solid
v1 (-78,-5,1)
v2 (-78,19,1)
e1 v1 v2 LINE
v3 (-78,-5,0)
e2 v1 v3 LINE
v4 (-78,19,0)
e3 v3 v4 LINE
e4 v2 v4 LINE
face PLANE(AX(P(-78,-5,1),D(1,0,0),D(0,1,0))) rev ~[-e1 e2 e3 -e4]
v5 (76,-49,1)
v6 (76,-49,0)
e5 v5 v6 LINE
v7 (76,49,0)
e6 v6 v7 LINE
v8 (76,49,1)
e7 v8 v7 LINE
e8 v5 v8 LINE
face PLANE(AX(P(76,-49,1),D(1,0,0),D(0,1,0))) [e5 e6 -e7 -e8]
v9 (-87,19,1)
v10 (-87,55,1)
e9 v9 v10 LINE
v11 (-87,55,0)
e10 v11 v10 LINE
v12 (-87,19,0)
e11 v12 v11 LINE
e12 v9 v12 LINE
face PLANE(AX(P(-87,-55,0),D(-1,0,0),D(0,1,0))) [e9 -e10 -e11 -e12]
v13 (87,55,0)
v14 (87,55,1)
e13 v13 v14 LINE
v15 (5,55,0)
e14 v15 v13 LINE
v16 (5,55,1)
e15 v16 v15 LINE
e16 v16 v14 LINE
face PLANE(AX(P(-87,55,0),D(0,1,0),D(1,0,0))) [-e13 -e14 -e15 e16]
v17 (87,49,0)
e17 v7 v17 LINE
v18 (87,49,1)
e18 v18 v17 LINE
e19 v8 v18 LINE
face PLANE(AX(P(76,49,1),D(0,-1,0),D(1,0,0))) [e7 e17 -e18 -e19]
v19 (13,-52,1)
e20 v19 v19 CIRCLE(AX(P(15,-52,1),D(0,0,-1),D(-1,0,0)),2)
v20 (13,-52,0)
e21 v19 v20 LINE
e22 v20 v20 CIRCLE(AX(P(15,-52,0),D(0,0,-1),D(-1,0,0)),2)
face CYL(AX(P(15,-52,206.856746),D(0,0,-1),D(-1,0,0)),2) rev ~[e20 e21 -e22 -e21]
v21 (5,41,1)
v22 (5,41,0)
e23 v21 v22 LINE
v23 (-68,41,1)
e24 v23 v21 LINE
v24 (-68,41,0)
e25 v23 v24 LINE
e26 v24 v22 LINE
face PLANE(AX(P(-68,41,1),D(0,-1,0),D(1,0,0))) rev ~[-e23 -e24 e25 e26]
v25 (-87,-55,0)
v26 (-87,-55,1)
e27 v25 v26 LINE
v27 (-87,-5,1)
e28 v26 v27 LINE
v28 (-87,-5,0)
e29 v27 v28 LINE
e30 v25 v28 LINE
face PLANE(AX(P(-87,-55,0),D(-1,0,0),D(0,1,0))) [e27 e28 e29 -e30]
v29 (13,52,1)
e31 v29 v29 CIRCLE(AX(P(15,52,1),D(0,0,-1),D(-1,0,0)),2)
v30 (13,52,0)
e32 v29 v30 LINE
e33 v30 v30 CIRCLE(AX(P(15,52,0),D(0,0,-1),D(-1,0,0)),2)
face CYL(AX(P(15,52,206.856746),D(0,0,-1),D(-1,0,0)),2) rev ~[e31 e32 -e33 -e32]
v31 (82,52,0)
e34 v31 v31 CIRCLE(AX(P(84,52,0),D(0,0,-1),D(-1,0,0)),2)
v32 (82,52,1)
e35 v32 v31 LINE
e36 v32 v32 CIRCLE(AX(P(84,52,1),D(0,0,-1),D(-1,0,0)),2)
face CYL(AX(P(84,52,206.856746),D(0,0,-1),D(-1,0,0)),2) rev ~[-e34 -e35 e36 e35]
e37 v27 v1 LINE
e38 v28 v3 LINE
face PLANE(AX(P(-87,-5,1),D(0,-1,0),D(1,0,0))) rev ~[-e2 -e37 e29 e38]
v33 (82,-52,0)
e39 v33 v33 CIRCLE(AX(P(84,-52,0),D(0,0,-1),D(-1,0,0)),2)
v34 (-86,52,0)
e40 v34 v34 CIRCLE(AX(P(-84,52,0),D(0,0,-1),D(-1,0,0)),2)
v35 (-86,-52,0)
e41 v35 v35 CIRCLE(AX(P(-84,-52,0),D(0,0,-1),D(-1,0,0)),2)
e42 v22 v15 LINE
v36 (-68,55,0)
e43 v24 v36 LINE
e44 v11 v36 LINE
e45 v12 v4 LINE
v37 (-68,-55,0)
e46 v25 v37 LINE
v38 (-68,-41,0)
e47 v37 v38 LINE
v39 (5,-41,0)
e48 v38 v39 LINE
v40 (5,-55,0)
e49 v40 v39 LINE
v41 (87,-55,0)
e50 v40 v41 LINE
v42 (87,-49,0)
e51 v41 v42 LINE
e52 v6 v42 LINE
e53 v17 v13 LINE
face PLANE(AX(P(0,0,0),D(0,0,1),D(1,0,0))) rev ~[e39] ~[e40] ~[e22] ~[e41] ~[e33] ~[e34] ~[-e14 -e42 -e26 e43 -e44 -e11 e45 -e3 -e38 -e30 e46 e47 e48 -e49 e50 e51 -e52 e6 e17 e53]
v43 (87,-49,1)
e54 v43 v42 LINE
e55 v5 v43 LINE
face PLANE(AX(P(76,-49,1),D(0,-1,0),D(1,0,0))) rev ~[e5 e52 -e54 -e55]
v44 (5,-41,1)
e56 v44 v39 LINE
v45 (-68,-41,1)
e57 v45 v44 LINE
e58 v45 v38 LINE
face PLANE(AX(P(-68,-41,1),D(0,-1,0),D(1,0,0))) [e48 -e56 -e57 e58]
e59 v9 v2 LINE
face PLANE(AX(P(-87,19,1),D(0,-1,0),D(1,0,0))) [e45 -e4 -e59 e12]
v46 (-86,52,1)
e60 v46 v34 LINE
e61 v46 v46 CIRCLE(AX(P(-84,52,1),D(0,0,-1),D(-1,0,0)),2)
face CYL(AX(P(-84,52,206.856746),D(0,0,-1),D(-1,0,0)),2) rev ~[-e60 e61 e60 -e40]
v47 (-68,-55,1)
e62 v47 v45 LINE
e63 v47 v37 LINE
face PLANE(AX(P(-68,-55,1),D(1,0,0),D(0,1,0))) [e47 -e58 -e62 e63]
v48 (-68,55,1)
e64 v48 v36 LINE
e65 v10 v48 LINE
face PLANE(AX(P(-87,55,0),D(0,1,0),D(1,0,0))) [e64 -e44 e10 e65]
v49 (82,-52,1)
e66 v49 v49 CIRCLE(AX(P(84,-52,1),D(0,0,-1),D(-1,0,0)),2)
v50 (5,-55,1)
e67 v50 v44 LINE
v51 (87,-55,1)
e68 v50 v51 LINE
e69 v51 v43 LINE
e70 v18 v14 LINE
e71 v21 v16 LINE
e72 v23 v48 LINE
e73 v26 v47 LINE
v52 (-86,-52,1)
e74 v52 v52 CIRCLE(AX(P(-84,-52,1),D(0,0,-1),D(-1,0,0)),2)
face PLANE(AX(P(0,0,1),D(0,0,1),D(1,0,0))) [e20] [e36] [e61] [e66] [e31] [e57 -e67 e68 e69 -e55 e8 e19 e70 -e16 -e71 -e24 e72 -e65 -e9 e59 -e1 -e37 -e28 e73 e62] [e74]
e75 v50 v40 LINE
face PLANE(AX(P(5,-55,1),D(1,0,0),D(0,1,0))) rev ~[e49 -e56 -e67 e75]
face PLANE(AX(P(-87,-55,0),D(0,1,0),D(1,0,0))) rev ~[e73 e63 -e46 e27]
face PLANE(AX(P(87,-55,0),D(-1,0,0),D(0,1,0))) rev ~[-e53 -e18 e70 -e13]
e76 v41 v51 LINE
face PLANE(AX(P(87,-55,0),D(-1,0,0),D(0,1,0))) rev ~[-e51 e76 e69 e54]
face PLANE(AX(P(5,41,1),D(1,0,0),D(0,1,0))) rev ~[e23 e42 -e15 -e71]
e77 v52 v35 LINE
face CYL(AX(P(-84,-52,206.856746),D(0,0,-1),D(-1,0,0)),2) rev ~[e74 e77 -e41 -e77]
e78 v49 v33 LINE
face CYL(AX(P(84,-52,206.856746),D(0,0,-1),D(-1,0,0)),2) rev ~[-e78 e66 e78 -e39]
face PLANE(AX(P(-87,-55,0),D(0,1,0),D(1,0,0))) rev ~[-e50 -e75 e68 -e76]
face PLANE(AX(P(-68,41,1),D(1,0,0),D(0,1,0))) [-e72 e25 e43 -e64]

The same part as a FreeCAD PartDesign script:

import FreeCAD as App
import Part
import Sketcher
from FreeCAD import Vector

doc = App.newDocument("Part")
params = doc.addObject("Spreadsheet::Sheet", "Params")
for row, (alias, value) in enumerate([
    ("sketch1_width", "174 mm"),
    ("sketch1_height", "110 mm"),
    ("pad1_length", "1 mm"),
    ("sketch2_width", "73 mm"),
    ("sketch2_width2", "9 mm"),
    ("sketch2_width3", "11 mm"),
    ("sketch2_height", "14 mm"),
    ("sketch2_height2", "24 mm"),
    ("pocket1_length", "25 mm"),
    ("sketch3_diameter", "4 mm"),
    ("hole_diameter", "4 mm"),
], start=1):
    params.set(f"A{row}", alias)
    params.set(f"B{row}", "=" + value)
    params.setAlias(f"B{row}", alias)

body = doc.addObject("PartDesign::Body", "Body")

sketch1 = body.newObject("Sketcher::SketchObject", "Sketch")
sketch1.AttachmentSupport = (doc.getObject("XY_Plane"), [""])
sketch1.MapMode = "FlatFace"
sketch1.addGeometry([
    Part.LineSegment(Vector(-87, 55, 0), Vector(-87, -55, 0)),
    Part.LineSegment(Vector(-87, -55, 0), Vector(87, -55, 0)),
    Part.LineSegment(Vector(87, -55, 0), Vector(87, 55, 0)),
    Part.LineSegment(Vector(87, 55, 0), Vector(-87, 55, 0)),
], False)
sketch1.addConstraint([
    Sketcher.Constraint("Coincident", 0, 2, 1, 1),
    Sketcher.Constraint("Coincident", 1, 2, 2, 1),
    Sketcher.Constraint("Coincident", 2, 2, 3, 1),
    Sketcher.Constraint("Coincident", 3, 2, 0, 1),
    Sketcher.Constraint("Vertical", 0),
    Sketcher.Constraint("Horizontal", 1),
    Sketcher.Constraint("Vertical", 2),
    Sketcher.Constraint("Horizontal", 3),
    Sketcher.Constraint("Symmetric", 0, 2, 2, 2, -1, 1),
    Sketcher.Constraint("DistanceX", 1, 1, 1, 2, 174.0),
    Sketcher.Constraint("DistanceY", 0, 2, 0, 1, 110.0),
])
sketch1.setExpression("Constraints[9]", "Params.sketch1_width")
sketch1.setExpression("Constraints[10]", "Params.sketch1_height")
pad1 = body.newObject("PartDesign::Pad", "Pad")
pad1.Profile = sketch1
pad1.setExpression("Length", "Params.pad1_length")

sketch2 = body.newObject("Sketcher::SketchObject", "Sketch001")
sketch2.AttachmentSupport = (doc.getObject("XY_Plane"), [""])
sketch2.MapMode = "FlatFace"
sketch2.AttachmentOffset = App.Placement(Vector(0, 0, 1), App.Rotation())
sketch2.addGeometry([
    Part.LineSegment(Vector(-68, 55, 0), Vector(-68, 41, 0)),
    Part.LineSegment(Vector(-68, 41, 0), Vector(5, 41, 0)),
    Part.LineSegment(Vector(5, 41, 0), Vector(5, 55, 0)),
    Part.LineSegment(Vector(5, 55, 0), Vector(-68, 55, 0)),
    Part.LineSegment(Vector(-68, -41, 0), Vector(-68, -55, 0)),
    Part.LineSegment(Vector(-68, -55, 0), Vector(5, -55, 0)),
    Part.LineSegment(Vector(5, -55, 0), Vector(5, -41, 0)),
    Part.LineSegment(Vector(5, -41, 0), Vector(-68, -41, 0)),
    Part.LineSegment(Vector(-87, 19, 0), Vector(-87, -5, 0)),
    Part.LineSegment(Vector(-87, -5, 0), Vector(-78, -5, 0)),
    Part.LineSegment(Vector(-78, -5, 0), Vector(-78, 19, 0)),
    Part.LineSegment(Vector(-78, 19, 0), Vector(-87, 19, 0)),
    Part.LineSegment(Vector(76, 49, 0), Vector(76, -49, 0)),
    Part.LineSegment(Vector(76, -49, 0), Vector(87, -49, 0)),
    Part.LineSegment(Vector(87, -49, 0), Vector(87, 49, 0)),
    Part.LineSegment(Vector(87, 49, 0), Vector(76, 49, 0)),
], False)
sketch2.addConstraint([
    Sketcher.Constraint("Coincident", 0, 2, 1, 1),
    Sketcher.Constraint("Coincident", 1, 2, 2, 1),
    Sketcher.Constraint("Coincident", 2, 2, 3, 1),
    Sketcher.Constraint("Coincident", 3, 2, 0, 1),
    Sketcher.Constraint("Coincident", 4, 2, 5, 1),
    Sketcher.Constraint("Coincident", 5, 2, 6, 1),
    Sketcher.Constraint("Coincident", 6, 2, 7, 1),
    Sketcher.Constraint("Coincident", 7, 2, 4, 1),
    Sketcher.Constraint("Coincident", 8, 2, 9, 1),
    Sketcher.Constraint("Coincident", 9, 2, 10, 1),
    Sketcher.Constraint("Coincident", 10, 2, 11, 1),
    Sketcher.Constraint("Coincident", 11, 2, 8, 1),
    Sketcher.Constraint("Coincident", 12, 2, 13, 1),
    Sketcher.Constraint("Coincident", 13, 2, 14, 1),
    Sketcher.Constraint("Coincident", 14, 2, 15, 1),
    Sketcher.Constraint("Coincident", 15, 2, 12, 1),
    Sketcher.Constraint("Vertical", 0),
    Sketcher.Constraint("Horizontal", 1),
    Sketcher.Constraint("Vertical", 2),
    Sketcher.Constraint("Horizontal", 3),
    Sketcher.Constraint("Vertical", 4),
    Sketcher.Constraint("Horizontal", 5),
    Sketcher.Constraint("Vertical", 6),
    Sketcher.Constraint("Horizontal", 7),
    Sketcher.Constraint("Vertical", 8),
    Sketcher.Constraint("Horizontal", 9),
    Sketcher.Constraint("Vertical", 10),
    Sketcher.Constraint("Horizontal", 11),
    Sketcher.Constraint("Vertical", 12),
    Sketcher.Constraint("Horizontal", 13),
    Sketcher.Constraint("Vertical", 14),
    Sketcher.Constraint("Horizontal", 15),
    Sketcher.Constraint("Symmetric", 3, 2, 4, 2, -1),
    Sketcher.Constraint("Symmetric", 1, 2, 6, 2, -1),
    Sketcher.Constraint("DistanceX", 1, 1, 1, 2, 73.0),
    Sketcher.Constraint("DistanceX", 9, 1, 9, 2, 9.0),
    Sketcher.Constraint("DistanceX", 13, 1, 13, 2, 11.0),
    Sketcher.Constraint("DistanceY", 0, 2, 0, 1, 14.0),
    Sketcher.Constraint("DistanceY", 8, 2, 8, 1, 24.0),
    Sketcher.Constraint("DistanceY", 12, 2, 12, 1, 98.0),
    Sketcher.Constraint("DistanceX", 0, 2, -1, 1, 68.0),
    Sketcher.Constraint("DistanceY", -1, 1, 0, 2, 41.0),
    Sketcher.Constraint("DistanceX", 8, 2, -1, 1, 87.0),
    Sketcher.Constraint("DistanceY", 8, 2, -1, 1, 5.0),
    Sketcher.Constraint("DistanceX", -1, 1, 12, 2, 76.0),
    Sketcher.Constraint("DistanceY", 12, 2, -1, 1, 49.0),
])
sketch2.setExpression("Constraints[34]", "Params.sketch2_width")
sketch2.setExpression("Constraints[35]", "Params.sketch2_width2")
sketch2.setExpression("Constraints[36]", "Params.sketch2_width3")
sketch2.setExpression("Constraints[37]", "Params.sketch2_height")
sketch2.setExpression("Constraints[38]", "Params.sketch2_height2")
pocket1 = body.newObject("PartDesign::Pocket", "Pocket")
pocket1.Profile = sketch2
pocket1.setExpression("Length", "Params.pocket1_length")

sketch3 = body.newObject("Sketcher::SketchObject", "Sketch002")
sketch3.AttachmentSupport = (doc.getObject("XY_Plane"), [""])
sketch3.MapMode = "FlatFace"
sketch3.AttachmentOffset = App.Placement(Vector(0, 0, 1), App.Rotation())
sketch3.addGeometry([
    Part.Circle(Vector(-84, 52, 0), Vector(0, 0, 1), 2),
    Part.Circle(Vector(15, -52, 0), Vector(0, 0, 1), 2),
    Part.Circle(Vector(15, 52, 0), Vector(0, 0, 1), 2),
    Part.Circle(Vector(84, 52, 0), Vector(0, 0, 1), 2),
    Part.Circle(Vector(84, -52, 0), Vector(0, 0, 1), 2),
    Part.Circle(Vector(-84, -52, 0), Vector(0, 0, 1), 2),
], False)
sketch3.addConstraint([
    Sketcher.Constraint("Equal", 0, 1),
    Sketcher.Constraint("Equal", 1, 2),
    Sketcher.Constraint("Equal", 2, 3),
    Sketcher.Constraint("Equal", 3, 4),
    Sketcher.Constraint("Equal", 4, 5),
    Sketcher.Constraint("Symmetric", 0, 3, 4, 3, -1, 1),
    Sketcher.Constraint("Symmetric", 3, 3, 5, 3, -1, 1),
    Sketcher.Constraint("Symmetric", 0, 3, 3, 3, -2),
    Sketcher.Constraint("Symmetric", 1, 3, 2, 3, -1),
    Sketcher.Constraint("Horizontal", 0, 3, 2, 3),
    Sketcher.Constraint("Diameter", 0, 4.0),
    Sketcher.Constraint("DistanceX", 0, 3, -1, 1, 84.0),
    Sketcher.Constraint("DistanceY", -1, 1, 0, 3, 52.0),
    Sketcher.Constraint("DistanceX", -1, 1, 1, 3, 15.0),
])
sketch3.setExpression("Constraints[10]", "Params.sketch3_diameter")
doc.recompute()
hole = body.newObject("PartDesign::Hole", "Hole")
hole.Profile = sketch3
hole.ThreadType = "None"
hole.setExpression("Diameter", "Params.hole_diameter")
hole.DepthType = "ThroughAll"

doc.recompute()
